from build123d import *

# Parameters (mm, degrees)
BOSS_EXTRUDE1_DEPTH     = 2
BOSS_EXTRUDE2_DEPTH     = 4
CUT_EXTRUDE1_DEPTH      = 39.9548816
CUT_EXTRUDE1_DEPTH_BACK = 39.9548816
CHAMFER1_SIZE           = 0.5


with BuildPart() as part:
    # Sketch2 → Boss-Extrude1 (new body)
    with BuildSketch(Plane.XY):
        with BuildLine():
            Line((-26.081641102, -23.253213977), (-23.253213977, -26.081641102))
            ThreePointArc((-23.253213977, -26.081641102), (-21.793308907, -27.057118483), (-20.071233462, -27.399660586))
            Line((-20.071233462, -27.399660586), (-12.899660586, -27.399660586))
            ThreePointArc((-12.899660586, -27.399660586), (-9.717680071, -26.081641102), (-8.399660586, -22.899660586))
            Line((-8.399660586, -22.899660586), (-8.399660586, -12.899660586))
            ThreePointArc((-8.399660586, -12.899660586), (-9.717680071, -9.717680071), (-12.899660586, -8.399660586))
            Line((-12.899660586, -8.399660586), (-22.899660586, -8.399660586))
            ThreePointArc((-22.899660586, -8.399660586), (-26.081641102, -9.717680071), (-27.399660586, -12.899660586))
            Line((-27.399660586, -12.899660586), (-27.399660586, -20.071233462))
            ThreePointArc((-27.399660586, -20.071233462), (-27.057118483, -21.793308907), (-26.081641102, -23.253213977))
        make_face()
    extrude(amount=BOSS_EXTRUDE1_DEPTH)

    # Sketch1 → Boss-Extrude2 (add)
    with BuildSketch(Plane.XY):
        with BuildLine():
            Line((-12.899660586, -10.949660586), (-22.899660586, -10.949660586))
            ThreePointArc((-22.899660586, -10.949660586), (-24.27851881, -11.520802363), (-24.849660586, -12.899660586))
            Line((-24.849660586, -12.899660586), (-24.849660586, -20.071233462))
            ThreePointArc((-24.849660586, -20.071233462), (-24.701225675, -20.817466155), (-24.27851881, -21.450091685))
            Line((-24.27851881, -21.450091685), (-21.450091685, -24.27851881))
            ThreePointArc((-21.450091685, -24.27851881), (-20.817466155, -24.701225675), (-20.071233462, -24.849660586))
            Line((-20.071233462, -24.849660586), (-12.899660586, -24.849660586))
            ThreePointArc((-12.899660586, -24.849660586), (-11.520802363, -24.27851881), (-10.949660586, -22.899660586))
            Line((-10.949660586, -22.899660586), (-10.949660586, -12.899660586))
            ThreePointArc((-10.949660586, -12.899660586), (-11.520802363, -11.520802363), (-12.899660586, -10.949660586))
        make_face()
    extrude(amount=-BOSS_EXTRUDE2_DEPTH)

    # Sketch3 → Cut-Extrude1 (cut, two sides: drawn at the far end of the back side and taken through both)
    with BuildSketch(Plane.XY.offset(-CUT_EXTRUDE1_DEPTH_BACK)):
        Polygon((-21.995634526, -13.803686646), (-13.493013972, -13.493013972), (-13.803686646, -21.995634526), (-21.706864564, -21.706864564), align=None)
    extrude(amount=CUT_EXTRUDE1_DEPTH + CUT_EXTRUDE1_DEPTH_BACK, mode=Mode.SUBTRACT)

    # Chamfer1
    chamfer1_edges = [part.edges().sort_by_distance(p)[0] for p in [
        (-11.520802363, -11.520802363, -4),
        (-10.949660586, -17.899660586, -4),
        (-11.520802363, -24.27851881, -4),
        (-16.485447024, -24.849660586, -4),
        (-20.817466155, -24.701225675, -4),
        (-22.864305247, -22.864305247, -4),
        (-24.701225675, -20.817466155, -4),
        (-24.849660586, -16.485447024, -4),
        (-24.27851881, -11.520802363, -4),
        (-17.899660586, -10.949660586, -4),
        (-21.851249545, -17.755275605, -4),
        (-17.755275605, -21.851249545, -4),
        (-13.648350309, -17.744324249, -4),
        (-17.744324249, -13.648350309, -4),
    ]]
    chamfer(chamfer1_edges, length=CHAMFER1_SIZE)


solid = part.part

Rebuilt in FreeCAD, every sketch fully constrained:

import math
import FreeCAD as App
import Part
import Sketcher

V = App.Vector


def edges_at(feature, points):
    """Names of the edges that pass closest to the given points."""
    edges = feature.Shape.Edges
    near = lambda p: min(range(len(edges)), key=lambda i: edges[i].distToShape(Part.Vertex(*p))[0])
    return sorted({f"Edge{near(p) + 1}" for p in points})

doc = App.newDocument("Part")
params = doc.addObject("Spreadsheet::Sheet", "Params")
for row, (alias, value) in enumerate([
    ("sketch1_radius", "4.5 mm"),
    ("sketch1_width", "10 mm"),
    ("sketch1_length", "4 mm"),
    ("pad1_length", "2 mm"),
    ("sketch2_width", "10 mm"),
    ("sketch2_radius", "1.95 mm"),
    ("sketch2_length", "4 mm"),
    ("pad2_length", "4 mm"),
    ("chamfer_size", "0.5 mm"),
], start=1):
    params.set(f"A{row}", alias)
    params.set(f"B{row}", "=" + value)
    params.setAlias(f"B{row}", alias)

body = doc.addObject("PartDesign::Body", "Body")

# Sketch on XY plane
sketch1 = doc.addObject("Sketcher::SketchObject", "Sketch")
body.addObject(sketch1)
sketch1.AttachmentSupport = (doc.XY_Plane, [""])
sketch1.MapMode = "FlatFace"
sketch1.addGeometry(Part.LineSegment(V(-26.1, -23.3, 0), V(-23.3, -26.1, 0)), False)
sketch1.addGeometry(Part.ArcOfCircle(Part.Circle(V(-20.1, -22.9, 0), V(0, 0, 1), 4.5), math.radians(-135), math.radians(-90)), False)
sketch1.addGeometry(Part.LineSegment(V(-20.1, -27.4, 0), V(-12.9, -27.4, 0)), False)
sketch1.addGeometry(Part.ArcOfCircle(Part.Circle(V(-12.9, -22.9, 0), V(0, 0, 1), 4.5), math.radians(-90), math.radians(0)), False)
sketch1.addGeometry(Part.LineSegment(V(-8.4, -22.9, 0), V(-8.4, -12.9, 0)), False)
sketch1.addGeometry(Part.ArcOfCircle(Part.Circle(V(-12.9, -12.9, 0), V(0, 0, 1), 4.5), math.radians(0), math.radians(90)), False)
sketch1.addGeometry(Part.LineSegment(V(-12.9, -8.4, 0), V(-22.9, -8.4, 0)), False)
sketch1.addGeometry(Part.ArcOfCircle(Part.Circle(V(-22.9, -12.9, 0), V(0, 0, 1), 4.5), math.radians(90), math.radians(180)), False)
sketch1.addGeometry(Part.LineSegment(V(-27.4, -12.9, 0), V(-27.4, -20.1, 0)), False)
sketch1.addGeometry(Part.ArcOfCircle(Part.Circle(V(-22.9, -20.1, 0), V(0, 0, 1), 4.5), math.radians(180), math.radians(225)), False)
sketch1.addConstraint(Sketcher.Constraint("Tangent", 0, 2, 1, 1))
sketch1.addConstraint(Sketcher.Constraint("Tangent", 1, 2, 2, 1))
sketch1.addConstraint(Sketcher.Constraint("Tangent", 2, 2, 3, 1))
sketch1.addConstraint(Sketcher.Constraint("Tangent", 3, 2, 4, 1))
sketch1.addConstraint(Sketcher.Constraint("Tangent", 4, 2, 5, 1))
sketch1.addConstraint(Sketcher.Constraint("Tangent", 5, 2, 6, 1))
sketch1.addConstraint(Sketcher.Constraint("Tangent", 6, 2, 7, 1))
sketch1.addConstraint(Sketcher.Constraint("Tangent", 7, 2, 8, 1))
sketch1.addConstraint(Sketcher.Constraint("Tangent", 8, 2, 9, 1))
sketch1.addConstraint(Sketcher.Constraint("Tangent", 9, 2, 0, 1))
sketch1.addConstraint(Sketcher.Constraint("Horizontal", 2))
sketch1.addConstraint(Sketcher.Constraint("Vertical", 4))
sketch1.addConstraint(Sketcher.Constraint("Horizontal", 6))
sketch1.addConstraint(Sketcher.Constraint("Vertical", 8))
sketch1.addConstraint(Sketcher.Constraint("Equal", 1, 3))
sketch1.addConstraint(Sketcher.Constraint("Equal", 3, 5))
sketch1.addConstraint(Sketcher.Constraint("Equal", 5, 7))
sketch1.addConstraint(Sketcher.Constraint("Equal", 7, 9))
sketch1.addConstraint(Sketcher.Constraint("Equal", 6, 4))
sketch1.addConstraint(Sketcher.Constraint("Equal", 2, 8))
sketch1.addConstraint(Sketcher.Constraint("Radius", 1, 4.5))
sketch1.addConstraint(Sketcher.Constraint("DistanceX", 6, 2, 6, 1, 10.0))
sketch1.addConstraint(Sketcher.Constraint("Distance", 0, 4.0))
sketch1.addConstraint(Sketcher.Constraint("DistanceY", 1, 3, -1, 1, 22.899661))
sketch1.addConstraint(Sketcher.Constraint("DistanceX", 3, 3, -1, 1, 12.899661))
sketch1.setExpression("Constraints[20]", "Params.sketch1_radius")
sketch1.setExpression("Constraints[21]", "Params.sketch1_width")
sketch1.setExpression("Constraints[22]", "Params.sketch1_length")
pad1 = doc.addObject("PartDesign::Pad", "Pad")
body.addObject(pad1)
pad1.Profile = sketch1
pad1.setExpression("Length", "Params.pad1_length")

# Sketch on XY plane
sketch2 = doc.addObject("Sketcher::SketchObject", "Sketch001")
body.addObject(sketch2)
sketch2.AttachmentSupport = (doc.XY_Plane, [""])
sketch2.MapMode = "FlatFace"
sketch2.addGeometry(Part.LineSegment(V(-12.9, -10.9, 0), V(-22.9, -10.9, 0)), False)
sketch2.addGeometry(Part.ArcOfCircle(Part.Circle(V(-22.9, -12.9, 0), V(0, 0, 1), 1.9), math.radians(90), math.radians(180)), False)
sketch2.addGeometry(Part.LineSegment(V(-24.8, -12.9, 0), V(-24.8, -20.1, 0)), False)
sketch2.addGeometry(Part.ArcOfCircle(Part.Circle(V(-22.9, -20.1, 0), V(0, 0, 1), 1.9), math.radians(180), math.radians(225)), False)
sketch2.addGeometry(Part.LineSegment(V(-24.3, -21.5, 0), V(-21.5, -24.3, 0)), False)
sketch2.addGeometry(Part.ArcOfCircle(Part.Circle(V(-20.1, -22.9, 0), V(0, 0, 1), 1.9), math.radians(-135), math.radians(-90)), False)
sketch2.addGeometry(Part.LineSegment(V(-20.1, -24.8, 0), V(-12.9, -24.8, 0)), False)
sketch2.addGeometry(Part.ArcOfCircle(Part.Circle(V(-12.9, -22.9, 0), V(0, 0, 1), 1.9), math.radians(-90), math.radians(0)), False)
sketch2.addGeometry(Part.LineSegment(V(-10.9, -22.9, 0), V(-10.9, -12.9, 0)), False)
sketch2.addGeometry(Part.ArcOfCircle(Part.Circle(V(-12.9, -12.9, 0), V(0, 0, 1), 2), math.radians(0), math.radians(90)), False)
sketch2.addConstraint(Sketcher.Constraint("Tangent", 0, 2, 1, 1))
sketch2.addConstraint(Sketcher.Constraint("Tangent", 1, 2, 2, 1))
sketch2.addConstraint(Sketcher.Constraint("Tangent", 2, 2, 3, 1))
sketch2.addConstraint(Sketcher.Constraint("Tangent", 3, 2, 4, 1))
sketch2.addConstraint(Sketcher.Constraint("Tangent", 4, 2, 5, 1))
sketch2.addConstraint(Sketcher.Constraint("Tangent", 5, 2, 6, 1))
sketch2.addConstraint(Sketcher.Constraint("Tangent", 6, 2, 7, 1))
sketch2.addConstraint(Sketcher.Constraint("Tangent", 7, 2, 8, 1))
sketch2.addConstraint(Sketcher.Constraint("Tangent", 8, 2, 9, 1))
sketch2.addConstraint(Sketcher.Constraint("Tangent", 9, 2, 0, 1))
sketch2.addConstraint(Sketcher.Constraint("Horizontal", 0))
sketch2.addConstraint(Sketcher.Constraint("Vertical", 2))
sketch2.addConstraint(Sketcher.Constraint("Horizontal", 6))
sketch2.addConstraint(Sketcher.Constraint("Vertical", 8))
sketch2.addConstraint(Sketcher.Constraint("Equal", 1, 3))
sketch2.addConstraint(Sketcher.Constraint("Equal", 3, 5))
sketch2.addConstraint(Sketcher.Constraint("Equal", 5, 7))
sketch2.addConstraint(Sketcher.Constraint("Equal", 7, 9))
sketch2.addConstraint(Sketcher.Constraint("Equal", 6, 2))
sketch2.addConstraint(Sketcher.Constraint("Equal", 0, 8))
sketch2.addConstraint(Sketcher.Constraint("DistanceX", 0, 2, 0, 1, 10.0))
sketch2.addConstraint(Sketcher.Constraint("Radius", 1, 1.95))
sketch2.addConstraint(Sketcher.Constraint("Distance", 4, 4.0))
sketch2.addConstraint(Sketcher.Constraint("DistanceX", 1, 3, -1, 1, 22.899661))
sketch2.addConstraint(Sketcher.Constraint("DistanceY", 1, 3, -1, 1, 12.899661))
sketch2.setExpression("Constraints[20]", "Params.sketch2_width")
sketch2.setExpression("Constraints[21]", "Params.sketch2_radius")
sketch2.setExpression("Constraints[22]", "Params.sketch2_length")
pad2 = doc.addObject("PartDesign::Pad", "Pad001")
body.addObject(pad2)
pad2.Profile = sketch2
pad2.setExpression("Length", "Params.pad2_length")
pad2.Reversed = True

# Sketch on XY plane
sketch3 = doc.addObject("Sketcher::SketchObject", "Sketch002")
body.addObject(sketch3)
sketch3.AttachmentSupport = (doc.XY_Plane, [""])
sketch3.MapMode = "FlatFace"
sketch3.addGeometry(Part.LineSegment(V(-13, -13, 0), V(-22, -14, 0)), False)
sketch3.addGeometry(Part.LineSegment(V(-22, -14, 0), V(-22, -22, 0)), False)
sketch3.addGeometry(Part.LineSegment(V(-22, -22, 0), V(-14, -22, 0)), False)
sketch3.addGeometry(Part.LineSegment(V(-14, -22, 0), V(-13, -13, 0)), False)
sketch3.addConstraint(Sketcher.Constraint("Coincident", 0, 2, 1, 1))
sketch3.addConstraint(Sketcher.Constraint("Coincident", 1, 2, 2, 1))
sketch3.addConstraint(Sketcher.Constraint("Coincident", 2, 2, 3, 1))
sketch3.addConstraint(Sketcher.Constraint("Coincident", 3, 2, 0, 1))
sketch3.addConstraint(Sketcher.Constraint("Perpendicular", 0, 1))
sketch3.addConstraint(Sketcher.Constraint("Perpendicular", 2, 3))
sketch3.addConstraint(Sketcher.Constraint("Equal", 1, 2))
sketch3.addConstraint(Sketcher.Constraint("Distance", 1, 7.908452))
sketch3.addConstraint(Sketcher.Constraint("DistanceX", 0, 2, 1, 2, 0.28877))
sketch3.addConstraint(Sketcher.Constraint("DistanceY", 2, 2, 1, 2, 0.28877))
sketch3.addConstraint(Sketcher.Constraint("DistanceX", 0, 2, -1, 1, 21.995635))
sketch3.addConstraint(Sketcher.Constraint("DistanceY", 0, 2, -1, 1, 13.803687))
pocket1 = doc.addObject("PartDesign::Pocket", "Pocket")
body.addObject(pocket1)
pocket1.Profile = sketch3
pocket1.Type = "ThroughAll"
pocket1.Midplane = True
doc.recompute()

chamfer = doc.addObject("PartDesign::Chamfer", "Chamfer")
body.addObject(chamfer)
chamfer.Base = (pocket1, edges_at(pocket1, [
    (-11.521, -11.521, -4),
    (-10.95, -17.9, -4),
    (-11.521, -24.279, -4),
    (-16.485, -24.85, -4),
    (-20.817, -24.701, -4),
    (-22.864, -22.864, -4),
    (-24.701, -20.817, -4),
    (-24.85, -16.485, -4),
    (-24.279, -11.521, -4),
    (-17.9, -10.95, -4),
    (-21.851, -17.755, -4),
    (-17.755, -21.851, -4),
    (-13.648, -17.744, -4),
    (-17.744, -13.648, -4),
]))
chamfer.setExpression("Size", "Params.chamfer_size")

doc.recompute()
